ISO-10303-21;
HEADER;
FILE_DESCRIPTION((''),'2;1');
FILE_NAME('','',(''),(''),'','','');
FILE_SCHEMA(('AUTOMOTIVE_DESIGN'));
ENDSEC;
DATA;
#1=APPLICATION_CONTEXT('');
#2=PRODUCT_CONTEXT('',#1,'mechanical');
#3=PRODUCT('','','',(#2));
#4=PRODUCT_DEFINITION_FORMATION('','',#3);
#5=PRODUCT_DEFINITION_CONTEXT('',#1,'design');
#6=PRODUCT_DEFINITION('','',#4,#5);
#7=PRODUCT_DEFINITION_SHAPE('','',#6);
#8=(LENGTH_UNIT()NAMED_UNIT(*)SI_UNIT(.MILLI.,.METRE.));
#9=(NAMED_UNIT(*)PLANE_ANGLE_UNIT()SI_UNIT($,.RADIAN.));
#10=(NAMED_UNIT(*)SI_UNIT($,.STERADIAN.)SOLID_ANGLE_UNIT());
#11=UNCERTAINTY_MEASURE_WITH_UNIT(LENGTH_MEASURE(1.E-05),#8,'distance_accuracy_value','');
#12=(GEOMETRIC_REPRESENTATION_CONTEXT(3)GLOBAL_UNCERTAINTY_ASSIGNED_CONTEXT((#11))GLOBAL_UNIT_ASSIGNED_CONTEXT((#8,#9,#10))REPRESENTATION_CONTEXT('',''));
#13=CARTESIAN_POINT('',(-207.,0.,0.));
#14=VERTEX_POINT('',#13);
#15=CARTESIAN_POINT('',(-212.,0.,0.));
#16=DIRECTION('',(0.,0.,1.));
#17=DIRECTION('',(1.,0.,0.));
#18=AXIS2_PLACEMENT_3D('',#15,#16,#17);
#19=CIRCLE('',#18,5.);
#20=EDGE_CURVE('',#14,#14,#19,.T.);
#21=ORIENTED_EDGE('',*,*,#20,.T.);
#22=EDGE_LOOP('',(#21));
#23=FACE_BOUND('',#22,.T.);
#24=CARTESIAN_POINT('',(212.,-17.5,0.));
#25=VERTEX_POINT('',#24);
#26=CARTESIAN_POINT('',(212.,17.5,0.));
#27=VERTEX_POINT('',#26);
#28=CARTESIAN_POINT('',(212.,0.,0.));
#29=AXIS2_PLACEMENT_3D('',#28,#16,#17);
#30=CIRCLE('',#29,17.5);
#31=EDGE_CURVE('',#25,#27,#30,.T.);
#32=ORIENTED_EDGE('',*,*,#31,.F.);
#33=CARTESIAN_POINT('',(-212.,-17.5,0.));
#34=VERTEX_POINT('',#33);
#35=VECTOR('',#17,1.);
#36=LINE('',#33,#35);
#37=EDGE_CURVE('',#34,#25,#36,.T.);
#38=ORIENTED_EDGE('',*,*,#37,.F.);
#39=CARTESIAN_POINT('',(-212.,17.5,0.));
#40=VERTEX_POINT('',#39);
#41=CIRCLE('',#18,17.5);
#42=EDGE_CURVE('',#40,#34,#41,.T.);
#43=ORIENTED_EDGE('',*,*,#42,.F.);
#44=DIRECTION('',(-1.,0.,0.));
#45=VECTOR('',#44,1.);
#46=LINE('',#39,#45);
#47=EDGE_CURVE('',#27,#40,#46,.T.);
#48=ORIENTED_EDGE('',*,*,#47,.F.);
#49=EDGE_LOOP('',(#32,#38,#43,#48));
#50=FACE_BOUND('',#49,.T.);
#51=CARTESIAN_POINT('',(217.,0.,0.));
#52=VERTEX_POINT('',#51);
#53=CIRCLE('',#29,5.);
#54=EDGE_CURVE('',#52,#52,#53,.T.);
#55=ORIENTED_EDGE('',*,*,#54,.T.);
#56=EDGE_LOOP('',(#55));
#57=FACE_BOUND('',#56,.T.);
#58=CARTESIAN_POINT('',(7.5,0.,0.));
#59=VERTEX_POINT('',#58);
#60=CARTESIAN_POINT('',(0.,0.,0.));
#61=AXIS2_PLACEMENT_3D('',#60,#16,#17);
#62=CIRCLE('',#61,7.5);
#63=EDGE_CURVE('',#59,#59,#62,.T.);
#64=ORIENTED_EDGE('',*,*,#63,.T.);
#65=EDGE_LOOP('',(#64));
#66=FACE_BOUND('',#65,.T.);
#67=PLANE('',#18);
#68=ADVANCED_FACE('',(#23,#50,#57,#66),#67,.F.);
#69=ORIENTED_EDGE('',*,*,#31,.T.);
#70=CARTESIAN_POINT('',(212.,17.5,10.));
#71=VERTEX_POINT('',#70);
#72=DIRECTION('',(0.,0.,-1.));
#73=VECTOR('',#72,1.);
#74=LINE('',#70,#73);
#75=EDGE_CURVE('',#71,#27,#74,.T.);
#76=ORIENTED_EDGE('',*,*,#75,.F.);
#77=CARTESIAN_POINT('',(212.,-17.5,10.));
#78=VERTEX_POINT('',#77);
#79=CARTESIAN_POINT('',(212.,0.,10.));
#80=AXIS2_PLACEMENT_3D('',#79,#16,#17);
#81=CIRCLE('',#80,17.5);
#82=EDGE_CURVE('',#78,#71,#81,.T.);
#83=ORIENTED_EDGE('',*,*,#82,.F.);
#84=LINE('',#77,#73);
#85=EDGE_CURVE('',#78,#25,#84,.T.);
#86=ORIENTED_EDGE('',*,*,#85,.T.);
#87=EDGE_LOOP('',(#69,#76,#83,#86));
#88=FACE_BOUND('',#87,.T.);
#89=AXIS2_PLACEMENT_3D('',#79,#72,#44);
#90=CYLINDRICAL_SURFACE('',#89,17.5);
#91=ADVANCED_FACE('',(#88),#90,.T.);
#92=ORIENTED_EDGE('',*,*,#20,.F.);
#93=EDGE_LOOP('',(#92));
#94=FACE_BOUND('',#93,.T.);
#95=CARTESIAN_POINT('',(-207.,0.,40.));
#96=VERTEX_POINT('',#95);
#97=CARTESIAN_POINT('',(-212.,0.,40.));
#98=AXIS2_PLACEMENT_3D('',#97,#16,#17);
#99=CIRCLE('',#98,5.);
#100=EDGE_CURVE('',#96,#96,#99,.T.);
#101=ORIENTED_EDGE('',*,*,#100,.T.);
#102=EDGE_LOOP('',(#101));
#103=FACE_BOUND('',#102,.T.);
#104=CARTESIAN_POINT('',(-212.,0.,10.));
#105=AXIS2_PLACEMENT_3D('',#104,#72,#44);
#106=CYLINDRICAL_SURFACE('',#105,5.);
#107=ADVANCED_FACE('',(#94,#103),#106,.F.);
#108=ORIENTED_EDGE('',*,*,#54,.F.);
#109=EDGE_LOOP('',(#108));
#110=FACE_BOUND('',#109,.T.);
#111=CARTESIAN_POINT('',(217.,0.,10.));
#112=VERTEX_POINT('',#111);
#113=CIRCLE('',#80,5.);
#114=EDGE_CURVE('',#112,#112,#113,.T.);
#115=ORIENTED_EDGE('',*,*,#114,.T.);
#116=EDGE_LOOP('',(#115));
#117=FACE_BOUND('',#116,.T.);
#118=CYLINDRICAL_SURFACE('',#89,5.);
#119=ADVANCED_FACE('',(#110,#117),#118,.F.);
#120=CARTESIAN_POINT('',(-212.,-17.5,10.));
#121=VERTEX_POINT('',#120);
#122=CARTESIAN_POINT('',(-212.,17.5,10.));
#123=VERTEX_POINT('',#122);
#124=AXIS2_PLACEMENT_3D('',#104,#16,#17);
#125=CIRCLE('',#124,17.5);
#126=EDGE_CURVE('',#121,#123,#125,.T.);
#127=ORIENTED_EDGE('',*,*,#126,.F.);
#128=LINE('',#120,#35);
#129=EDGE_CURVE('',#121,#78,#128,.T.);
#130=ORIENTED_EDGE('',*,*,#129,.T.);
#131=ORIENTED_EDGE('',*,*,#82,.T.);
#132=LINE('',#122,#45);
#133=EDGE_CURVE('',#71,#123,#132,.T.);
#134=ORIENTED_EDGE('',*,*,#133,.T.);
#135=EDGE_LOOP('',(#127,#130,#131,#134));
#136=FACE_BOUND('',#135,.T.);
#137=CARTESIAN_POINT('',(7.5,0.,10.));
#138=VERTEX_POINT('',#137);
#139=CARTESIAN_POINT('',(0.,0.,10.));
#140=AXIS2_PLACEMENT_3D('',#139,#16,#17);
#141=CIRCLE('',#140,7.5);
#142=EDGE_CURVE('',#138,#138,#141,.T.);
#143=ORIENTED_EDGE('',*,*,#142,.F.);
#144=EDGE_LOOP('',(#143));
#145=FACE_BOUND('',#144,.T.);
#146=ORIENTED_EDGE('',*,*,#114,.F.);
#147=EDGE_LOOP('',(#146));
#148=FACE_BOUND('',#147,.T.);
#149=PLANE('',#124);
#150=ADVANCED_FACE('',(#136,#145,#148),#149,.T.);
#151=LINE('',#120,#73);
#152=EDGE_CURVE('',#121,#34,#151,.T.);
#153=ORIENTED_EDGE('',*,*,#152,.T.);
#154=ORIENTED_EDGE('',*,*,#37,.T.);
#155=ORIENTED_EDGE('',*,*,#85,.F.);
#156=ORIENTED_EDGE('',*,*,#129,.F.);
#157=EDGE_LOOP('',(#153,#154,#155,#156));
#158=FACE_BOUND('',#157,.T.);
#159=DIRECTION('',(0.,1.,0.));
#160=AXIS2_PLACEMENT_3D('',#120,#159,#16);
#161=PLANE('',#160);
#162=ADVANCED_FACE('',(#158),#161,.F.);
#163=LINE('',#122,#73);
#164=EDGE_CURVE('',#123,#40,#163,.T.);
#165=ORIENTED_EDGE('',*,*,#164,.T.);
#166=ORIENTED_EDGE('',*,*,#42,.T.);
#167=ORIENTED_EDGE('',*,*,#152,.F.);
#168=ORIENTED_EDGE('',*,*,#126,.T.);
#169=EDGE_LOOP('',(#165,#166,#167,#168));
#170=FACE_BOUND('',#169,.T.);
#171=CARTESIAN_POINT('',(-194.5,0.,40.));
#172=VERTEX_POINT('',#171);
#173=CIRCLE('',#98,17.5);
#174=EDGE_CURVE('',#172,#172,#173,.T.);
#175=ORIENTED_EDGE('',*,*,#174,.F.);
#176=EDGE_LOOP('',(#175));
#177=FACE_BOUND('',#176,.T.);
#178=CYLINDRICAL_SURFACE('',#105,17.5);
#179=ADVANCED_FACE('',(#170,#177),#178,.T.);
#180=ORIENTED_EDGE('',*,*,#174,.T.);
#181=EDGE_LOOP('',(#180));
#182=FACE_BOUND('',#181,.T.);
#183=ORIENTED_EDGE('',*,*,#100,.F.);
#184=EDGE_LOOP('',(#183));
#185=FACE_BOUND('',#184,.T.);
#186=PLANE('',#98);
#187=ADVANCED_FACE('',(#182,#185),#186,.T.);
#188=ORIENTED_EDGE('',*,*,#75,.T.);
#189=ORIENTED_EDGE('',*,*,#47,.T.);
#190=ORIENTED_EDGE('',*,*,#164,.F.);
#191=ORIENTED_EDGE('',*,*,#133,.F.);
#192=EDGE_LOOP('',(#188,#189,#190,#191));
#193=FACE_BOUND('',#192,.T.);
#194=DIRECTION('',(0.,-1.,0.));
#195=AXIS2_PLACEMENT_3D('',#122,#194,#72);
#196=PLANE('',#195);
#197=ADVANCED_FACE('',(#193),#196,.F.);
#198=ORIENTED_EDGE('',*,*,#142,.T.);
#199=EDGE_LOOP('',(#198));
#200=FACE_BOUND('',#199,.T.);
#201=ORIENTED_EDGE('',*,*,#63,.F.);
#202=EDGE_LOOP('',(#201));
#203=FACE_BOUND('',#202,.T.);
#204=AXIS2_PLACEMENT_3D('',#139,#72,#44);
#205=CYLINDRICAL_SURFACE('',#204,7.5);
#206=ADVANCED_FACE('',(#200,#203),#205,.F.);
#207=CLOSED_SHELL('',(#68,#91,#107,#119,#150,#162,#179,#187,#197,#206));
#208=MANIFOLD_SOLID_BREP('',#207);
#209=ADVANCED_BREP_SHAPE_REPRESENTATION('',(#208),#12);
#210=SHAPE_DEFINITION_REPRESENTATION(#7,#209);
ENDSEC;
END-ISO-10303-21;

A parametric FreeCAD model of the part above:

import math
import FreeCAD as App
import Part
import Sketcher
Q = App.Units.Quantity

doc = App.newDocument("Part")
body = doc.addObject("PartDesign::Body", "Body")

# Sketch on XY plane
sketch1 = body.newObject("Sketcher::SketchObject", "Sketch")
sketch1.AttachmentSupport = (doc.getObject("XY_Plane"), [""])
sketch1.MapMode = "FlatFace"
sketch1.addGeometry(Part.LineSegment(App.Vector(212, 18, 0), App.Vector(-212, 18, 0)), False)
sketch1.addGeometry(Part.ArcOfCircle(Part.Circle(App.Vector(-212, 0, 0), App.Vector(0, 0, 1), 18), math.radians(90), math.radians(270)), False)
sketch1.addGeometry(Part.LineSegment(App.Vector(-212, -18, 0), App.Vector(212, -18, 0)), False)
sketch1.addGeometry(Part.ArcOfCircle(Part.Circle(App.Vector(212, 0, 0), App.Vector(0, 0, 1), 18), math.radians(-90), math.radians(90)), False)
sketch1.addGeometry(Part.Circle(App.Vector(212, 0, 0), App.Vector(0, 0, 1), 5), False)
sketch1.addGeometry(Part.Circle(App.Vector(0, 0, 0), App.Vector(0, 0, 1), 8), False)
sketch1.addGeometry(Part.Circle(App.Vector(-212, 0, 0), App.Vector(0, 0, 1), 5), False)
sketch1.addConstraint(Sketcher.Constraint("Tangent", 0, 2, 1, 1))
sketch1.addConstraint(Sketcher.Constraint("Tangent", 1, 2, 2, 1))
sketch1.addConstraint(Sketcher.Constraint("Tangent", 2, 2, 3, 1))
sketch1.addConstraint(Sketcher.Constraint("Tangent", 3, 2, 0, 1))
sketch1.addConstraint(Sketcher.Constraint("Horizontal", 0))
sketch1.addConstraint(Sketcher.Constraint("Horizontal", 2))
sketch1.addConstraint(Sketcher.Constraint("Coincident", 5, 3, -1, 1))
sketch1.addConstraint(Sketcher.Constraint("Coincident", 4, 3, 3, 3))
sketch1.addConstraint(Sketcher.Constraint("Coincident", 6, 3, 1, 3))
sketch1.addConstraint(Sketcher.Constraint("Equal", 4, 6))
sketch1.addConstraint(Sketcher.Constraint("Symmetric", 1, 3, 3, 3, -1, 1))
sketch1.addConstraint(Sketcher.Constraint("Diameter", 4, Q("10 mm")))
sketch1.addConstraint(Sketcher.Constraint("Diameter", 5, Q("15 mm")))
sketch1.addConstraint(Sketcher.Constraint("Radius", 1, Q("17.5 mm")))
sketch1.addConstraint(Sketcher.Constraint("DistanceX", 0, 2, 0, 1, Q("424 mm")))
pad1 = body.newObject("PartDesign::Pad", "Pad")
pad1.Profile = sketch1
pad1.Length = 10

# Sketch on XY plane
sketch2 = body.newObject("Sketcher::SketchObject", "Sketch001")
sketch2.AttachmentSupport = (doc.getObject("XY_Plane"), [""])
sketch2.MapMode = "FlatFace"
sketch2.AttachmentOffset = App.Placement(App.Vector(0, 0, 10), App.Rotation())
sketch2.addGeometry(Part.Circle(App.Vector(-212, 0, 0), App.Vector(0, 0, 1), 18), False)
sketch2.addGeometry(Part.Circle(App.Vector(-212, 0, 0), App.Vector(0, 0, 1), 5), False)
sketch2.addConstraint(Sketcher.Constraint("Coincident", 1, 3, 0, 3))
sketch2.addConstraint(Sketcher.Constraint("PointOnObject", 0, 3, -1))
sketch2.addConstraint(Sketcher.Constraint("Diameter", 0, Q("35 mm")))
sketch2.addConstraint(Sketcher.Constraint("Diameter", 1, Q("10 mm")))
sketch2.addConstraint(Sketcher.Constraint("DistanceX", 0, 3, -1, 1, Q("212 mm")))
pad2 = body.newObject("PartDesign::Pad", "Pad001")
pad2.Profile = sketch2
pad2.Length = 30

doc.recompute()
